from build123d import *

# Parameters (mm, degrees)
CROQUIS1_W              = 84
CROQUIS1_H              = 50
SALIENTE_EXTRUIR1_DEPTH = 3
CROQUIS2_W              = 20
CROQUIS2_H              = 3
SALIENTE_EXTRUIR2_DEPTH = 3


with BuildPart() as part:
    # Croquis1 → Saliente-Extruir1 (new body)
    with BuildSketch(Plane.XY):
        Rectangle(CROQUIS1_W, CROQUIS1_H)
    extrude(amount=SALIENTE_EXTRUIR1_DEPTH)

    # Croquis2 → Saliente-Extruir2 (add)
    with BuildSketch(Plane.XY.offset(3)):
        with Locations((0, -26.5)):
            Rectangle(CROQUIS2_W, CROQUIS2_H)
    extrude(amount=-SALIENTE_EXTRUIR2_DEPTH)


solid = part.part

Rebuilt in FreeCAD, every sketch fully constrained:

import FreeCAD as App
import Part
import Sketcher

V = App.Vector

doc = App.newDocument("Part")
body = doc.addObject("PartDesign::Body", "Body")

sketch1 = body.newObject("Sketcher::SketchObject", "Sketch")
sketch1.AttachmentSupport = (doc.getObject("XY_Plane"), [""])
sketch1.MapMode = "FlatFace"
sketch1.addGeometry([
    Part.LineSegment(V(-42, 25, 0), V(-42, -25, 0)),
    Part.LineSegment(V(-42, -25, 0), V(42, -25, 0)),
    Part.LineSegment(V(42, -25, 0), V(42, 25, 0)),
    Part.LineSegment(V(42, 25, 0), V(-42, 25, 0)),
], False)
sketch1.addConstraint([
    Sketcher.Constraint("Coincident", 0, 2, 1, 1),
    Sketcher.Constraint("Coincident", 1, 2, 2, 1),
    Sketcher.Constraint("Coincident", 2, 2, 3, 1),
    Sketcher.Constraint("Coincident", 3, 2, 0, 1),
    Sketcher.Constraint("Vertical", 0),
    Sketcher.Constraint("Horizontal", 1),
    Sketcher.Constraint("Vertical", 2),
    Sketcher.Constraint("Horizontal", 3),
    Sketcher.Constraint("Symmetric", 0, 2, 2, 2, -1, 1),
    Sketcher.Constraint("DistanceX", 1, 1, 1, 2, 84.0),
    Sketcher.Constraint("DistanceY", 0, 2, 0, 1, 50.0),
])
pad1 = body.newObject("PartDesign::Pad", "Pad")
pad1.Profile = sketch1
pad1.Length = 3

sketch2 = body.newObject("Sketcher::SketchObject", "Sketch001")
sketch2.AttachmentSupport = (doc.getObject("XY_Plane"), [""])
sketch2.MapMode = "FlatFace"
sketch2.AttachmentOffset = App.Placement(V(0, 0, 3), App.Rotation())
sketch2.addGeometry([
    Part.LineSegment(V(-10, -25, 0), V(-10, -28, 0)),
    Part.LineSegment(V(-10, -28, 0), V(10, -28, 0)),
    Part.LineSegment(V(10, -28, 0), V(10, -25, 0)),
    Part.LineSegment(V(10, -25, 0), V(-10, -25, 0)),
], False)
sketch2.addConstraint([
    Sketcher.Constraint("Coincident", 0, 2, 1, 1),
    Sketcher.Constraint("Coincident", 1, 2, 2, 1),
    Sketcher.Constraint("Coincident", 2, 2, 3, 1),
    Sketcher.Constraint("Coincident", 3, 2, 0, 1),
    Sketcher.Constraint("Vertical", 0),
    Sketcher.Constraint("Horizontal", 1),
    Sketcher.Constraint("Vertical", 2),
    Sketcher.Constraint("Horizontal", 3),
    Sketcher.Constraint("DistanceX", 1, 1, 1, 2, 20.0),
    Sketcher.Constraint("DistanceY", 0, 2, 0, 1, 3.0),
    Sketcher.Constraint("DistanceX", 0, 2, -1, 1, 10.0),
    Sketcher.Constraint("DistanceY", 0, 2, -1, 1, 28.0),
])
pad2 = body.newObject("PartDesign::Pad", "Pad001")
pad2.Profile = sketch2
pad2.Length = 3
pad2.Reversed = True

doc.recompute()
